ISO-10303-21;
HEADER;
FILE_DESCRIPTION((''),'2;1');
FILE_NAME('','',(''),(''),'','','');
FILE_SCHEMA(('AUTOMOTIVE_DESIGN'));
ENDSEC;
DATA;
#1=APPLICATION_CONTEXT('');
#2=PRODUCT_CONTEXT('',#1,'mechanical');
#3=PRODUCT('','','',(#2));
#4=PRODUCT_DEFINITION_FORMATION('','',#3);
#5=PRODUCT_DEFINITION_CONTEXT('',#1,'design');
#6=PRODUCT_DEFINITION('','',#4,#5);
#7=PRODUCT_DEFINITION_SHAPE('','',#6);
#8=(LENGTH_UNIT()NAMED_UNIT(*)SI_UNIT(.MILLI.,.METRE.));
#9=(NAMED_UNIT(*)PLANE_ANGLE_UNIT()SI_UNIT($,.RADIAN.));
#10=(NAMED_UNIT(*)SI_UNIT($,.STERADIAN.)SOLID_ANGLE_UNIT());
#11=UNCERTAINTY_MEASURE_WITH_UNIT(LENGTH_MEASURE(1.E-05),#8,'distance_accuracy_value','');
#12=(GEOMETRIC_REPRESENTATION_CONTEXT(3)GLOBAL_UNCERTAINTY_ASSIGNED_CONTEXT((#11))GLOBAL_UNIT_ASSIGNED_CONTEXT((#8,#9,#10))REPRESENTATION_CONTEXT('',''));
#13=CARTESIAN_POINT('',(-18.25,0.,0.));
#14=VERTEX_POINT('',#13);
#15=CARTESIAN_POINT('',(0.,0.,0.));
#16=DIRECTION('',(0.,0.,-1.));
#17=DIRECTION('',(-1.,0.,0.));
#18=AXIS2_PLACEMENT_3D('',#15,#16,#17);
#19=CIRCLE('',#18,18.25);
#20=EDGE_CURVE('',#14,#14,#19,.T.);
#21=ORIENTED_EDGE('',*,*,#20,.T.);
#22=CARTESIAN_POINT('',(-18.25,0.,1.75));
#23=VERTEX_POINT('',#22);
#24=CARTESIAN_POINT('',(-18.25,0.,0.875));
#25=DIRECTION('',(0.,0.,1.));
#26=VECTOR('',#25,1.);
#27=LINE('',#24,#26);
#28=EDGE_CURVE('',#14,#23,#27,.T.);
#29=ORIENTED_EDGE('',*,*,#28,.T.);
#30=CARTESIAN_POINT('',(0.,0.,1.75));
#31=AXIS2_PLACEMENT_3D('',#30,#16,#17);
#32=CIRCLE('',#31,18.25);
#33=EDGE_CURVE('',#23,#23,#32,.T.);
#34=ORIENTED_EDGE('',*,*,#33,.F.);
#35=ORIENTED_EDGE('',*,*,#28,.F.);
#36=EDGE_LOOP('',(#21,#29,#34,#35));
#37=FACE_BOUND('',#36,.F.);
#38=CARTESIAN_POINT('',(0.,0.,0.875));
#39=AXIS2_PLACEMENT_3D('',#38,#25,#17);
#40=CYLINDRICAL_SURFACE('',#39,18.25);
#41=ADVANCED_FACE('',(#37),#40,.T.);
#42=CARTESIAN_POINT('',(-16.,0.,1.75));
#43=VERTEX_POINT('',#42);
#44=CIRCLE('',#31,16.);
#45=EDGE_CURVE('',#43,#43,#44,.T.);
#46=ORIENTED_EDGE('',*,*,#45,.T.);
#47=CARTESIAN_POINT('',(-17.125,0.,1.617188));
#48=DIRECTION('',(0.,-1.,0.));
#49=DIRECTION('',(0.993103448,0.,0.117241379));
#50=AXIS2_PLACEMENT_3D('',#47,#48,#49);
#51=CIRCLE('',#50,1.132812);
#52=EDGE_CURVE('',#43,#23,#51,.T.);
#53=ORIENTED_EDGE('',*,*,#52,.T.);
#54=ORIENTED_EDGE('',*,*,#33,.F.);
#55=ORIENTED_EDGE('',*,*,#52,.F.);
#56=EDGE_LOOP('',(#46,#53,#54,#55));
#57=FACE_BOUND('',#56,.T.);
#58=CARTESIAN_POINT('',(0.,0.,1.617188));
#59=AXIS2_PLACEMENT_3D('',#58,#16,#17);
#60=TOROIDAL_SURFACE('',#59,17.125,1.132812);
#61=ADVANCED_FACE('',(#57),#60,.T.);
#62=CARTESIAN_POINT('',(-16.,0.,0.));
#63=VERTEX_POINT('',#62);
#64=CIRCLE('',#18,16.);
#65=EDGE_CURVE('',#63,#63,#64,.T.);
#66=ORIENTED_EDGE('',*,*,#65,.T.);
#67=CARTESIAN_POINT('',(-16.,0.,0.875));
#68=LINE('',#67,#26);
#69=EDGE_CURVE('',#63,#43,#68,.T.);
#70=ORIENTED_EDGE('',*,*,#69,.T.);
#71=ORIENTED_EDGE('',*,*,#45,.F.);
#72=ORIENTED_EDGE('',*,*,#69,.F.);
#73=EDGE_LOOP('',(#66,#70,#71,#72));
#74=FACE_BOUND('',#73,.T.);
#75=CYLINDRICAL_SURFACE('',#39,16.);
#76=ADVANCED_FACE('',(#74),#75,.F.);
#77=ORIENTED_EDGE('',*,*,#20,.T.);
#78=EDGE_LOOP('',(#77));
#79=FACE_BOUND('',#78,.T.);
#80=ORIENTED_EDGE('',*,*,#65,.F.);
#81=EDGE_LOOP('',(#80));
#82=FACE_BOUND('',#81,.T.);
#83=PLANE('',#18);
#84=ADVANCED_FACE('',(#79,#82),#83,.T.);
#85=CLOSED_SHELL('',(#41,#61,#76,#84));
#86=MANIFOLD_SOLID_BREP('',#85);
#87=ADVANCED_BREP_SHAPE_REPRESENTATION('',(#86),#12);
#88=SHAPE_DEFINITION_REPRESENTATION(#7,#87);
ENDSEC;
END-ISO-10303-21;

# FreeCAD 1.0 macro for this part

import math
import FreeCAD as App
import Part
import Sketcher
from FreeCAD import Vector

doc = App.newDocument("Part")
body = doc.addObject("PartDesign::Body", "Body")

# Sketch on XZ plane
sketch1 = body.newObject("Sketcher::SketchObject", "Sketch")
sketch1.AttachmentSupport = (doc.getObject("XZ_Plane"), [""])
sketch1.MapMode = "FlatFace"
sketch1.addGeometry([
    Part.LineSegment(Vector(-18.2, 1.8, 0), Vector(-18.2, 0, 0)),
    Part.LineSegment(Vector(-18.2, 0, 0), Vector(-16, 0, 0)),
    Part.LineSegment(Vector(-16, 0, 0), Vector(-16, 1.8, 0)),
    Part.ArcOfCircle(Part.Circle(Vector(-17.1, 1.6, 0), Vector(0, 0, 1), 1.1), math.radians(7), math.radians(173)),
], False)
sketch1.addConstraint([
    Sketcher.Constraint("Coincident", 0, 2, 1, 1),
    Sketcher.Constraint("Coincident", 1, 2, 2, 1),
    Sketcher.Constraint("Coincident", 2, 2, 3, 1),
    Sketcher.Constraint("Coincident", 3, 2, 0, 1),
    Sketcher.Constraint("Vertical", 0),
    Sketcher.Constraint("Horizontal", 1),
    Sketcher.Constraint("Vertical", 2),
    Sketcher.Constraint("PointOnObject", 0, 2, -1),
    Sketcher.Constraint("Horizontal", 2, 2, 3, 2),
    Sketcher.Constraint("DistanceX", 1, 2, -1, 1, 16.0),
    Sketcher.Constraint("DistanceX", 1, 1, 1, 2, 2.25),
    Sketcher.Constraint("DistanceY", 0, 2, 0, 1, 1.75),
    Sketcher.Constraint("Radius", 3, 1.132812),
])
revolution = body.newObject("PartDesign::Revolution", "Revolution")
revolution.Profile = sketch1
revolution.ReferenceAxis = (sketch1, ["V_Axis"])
revolution.Angle = 360

doc.recompute()
